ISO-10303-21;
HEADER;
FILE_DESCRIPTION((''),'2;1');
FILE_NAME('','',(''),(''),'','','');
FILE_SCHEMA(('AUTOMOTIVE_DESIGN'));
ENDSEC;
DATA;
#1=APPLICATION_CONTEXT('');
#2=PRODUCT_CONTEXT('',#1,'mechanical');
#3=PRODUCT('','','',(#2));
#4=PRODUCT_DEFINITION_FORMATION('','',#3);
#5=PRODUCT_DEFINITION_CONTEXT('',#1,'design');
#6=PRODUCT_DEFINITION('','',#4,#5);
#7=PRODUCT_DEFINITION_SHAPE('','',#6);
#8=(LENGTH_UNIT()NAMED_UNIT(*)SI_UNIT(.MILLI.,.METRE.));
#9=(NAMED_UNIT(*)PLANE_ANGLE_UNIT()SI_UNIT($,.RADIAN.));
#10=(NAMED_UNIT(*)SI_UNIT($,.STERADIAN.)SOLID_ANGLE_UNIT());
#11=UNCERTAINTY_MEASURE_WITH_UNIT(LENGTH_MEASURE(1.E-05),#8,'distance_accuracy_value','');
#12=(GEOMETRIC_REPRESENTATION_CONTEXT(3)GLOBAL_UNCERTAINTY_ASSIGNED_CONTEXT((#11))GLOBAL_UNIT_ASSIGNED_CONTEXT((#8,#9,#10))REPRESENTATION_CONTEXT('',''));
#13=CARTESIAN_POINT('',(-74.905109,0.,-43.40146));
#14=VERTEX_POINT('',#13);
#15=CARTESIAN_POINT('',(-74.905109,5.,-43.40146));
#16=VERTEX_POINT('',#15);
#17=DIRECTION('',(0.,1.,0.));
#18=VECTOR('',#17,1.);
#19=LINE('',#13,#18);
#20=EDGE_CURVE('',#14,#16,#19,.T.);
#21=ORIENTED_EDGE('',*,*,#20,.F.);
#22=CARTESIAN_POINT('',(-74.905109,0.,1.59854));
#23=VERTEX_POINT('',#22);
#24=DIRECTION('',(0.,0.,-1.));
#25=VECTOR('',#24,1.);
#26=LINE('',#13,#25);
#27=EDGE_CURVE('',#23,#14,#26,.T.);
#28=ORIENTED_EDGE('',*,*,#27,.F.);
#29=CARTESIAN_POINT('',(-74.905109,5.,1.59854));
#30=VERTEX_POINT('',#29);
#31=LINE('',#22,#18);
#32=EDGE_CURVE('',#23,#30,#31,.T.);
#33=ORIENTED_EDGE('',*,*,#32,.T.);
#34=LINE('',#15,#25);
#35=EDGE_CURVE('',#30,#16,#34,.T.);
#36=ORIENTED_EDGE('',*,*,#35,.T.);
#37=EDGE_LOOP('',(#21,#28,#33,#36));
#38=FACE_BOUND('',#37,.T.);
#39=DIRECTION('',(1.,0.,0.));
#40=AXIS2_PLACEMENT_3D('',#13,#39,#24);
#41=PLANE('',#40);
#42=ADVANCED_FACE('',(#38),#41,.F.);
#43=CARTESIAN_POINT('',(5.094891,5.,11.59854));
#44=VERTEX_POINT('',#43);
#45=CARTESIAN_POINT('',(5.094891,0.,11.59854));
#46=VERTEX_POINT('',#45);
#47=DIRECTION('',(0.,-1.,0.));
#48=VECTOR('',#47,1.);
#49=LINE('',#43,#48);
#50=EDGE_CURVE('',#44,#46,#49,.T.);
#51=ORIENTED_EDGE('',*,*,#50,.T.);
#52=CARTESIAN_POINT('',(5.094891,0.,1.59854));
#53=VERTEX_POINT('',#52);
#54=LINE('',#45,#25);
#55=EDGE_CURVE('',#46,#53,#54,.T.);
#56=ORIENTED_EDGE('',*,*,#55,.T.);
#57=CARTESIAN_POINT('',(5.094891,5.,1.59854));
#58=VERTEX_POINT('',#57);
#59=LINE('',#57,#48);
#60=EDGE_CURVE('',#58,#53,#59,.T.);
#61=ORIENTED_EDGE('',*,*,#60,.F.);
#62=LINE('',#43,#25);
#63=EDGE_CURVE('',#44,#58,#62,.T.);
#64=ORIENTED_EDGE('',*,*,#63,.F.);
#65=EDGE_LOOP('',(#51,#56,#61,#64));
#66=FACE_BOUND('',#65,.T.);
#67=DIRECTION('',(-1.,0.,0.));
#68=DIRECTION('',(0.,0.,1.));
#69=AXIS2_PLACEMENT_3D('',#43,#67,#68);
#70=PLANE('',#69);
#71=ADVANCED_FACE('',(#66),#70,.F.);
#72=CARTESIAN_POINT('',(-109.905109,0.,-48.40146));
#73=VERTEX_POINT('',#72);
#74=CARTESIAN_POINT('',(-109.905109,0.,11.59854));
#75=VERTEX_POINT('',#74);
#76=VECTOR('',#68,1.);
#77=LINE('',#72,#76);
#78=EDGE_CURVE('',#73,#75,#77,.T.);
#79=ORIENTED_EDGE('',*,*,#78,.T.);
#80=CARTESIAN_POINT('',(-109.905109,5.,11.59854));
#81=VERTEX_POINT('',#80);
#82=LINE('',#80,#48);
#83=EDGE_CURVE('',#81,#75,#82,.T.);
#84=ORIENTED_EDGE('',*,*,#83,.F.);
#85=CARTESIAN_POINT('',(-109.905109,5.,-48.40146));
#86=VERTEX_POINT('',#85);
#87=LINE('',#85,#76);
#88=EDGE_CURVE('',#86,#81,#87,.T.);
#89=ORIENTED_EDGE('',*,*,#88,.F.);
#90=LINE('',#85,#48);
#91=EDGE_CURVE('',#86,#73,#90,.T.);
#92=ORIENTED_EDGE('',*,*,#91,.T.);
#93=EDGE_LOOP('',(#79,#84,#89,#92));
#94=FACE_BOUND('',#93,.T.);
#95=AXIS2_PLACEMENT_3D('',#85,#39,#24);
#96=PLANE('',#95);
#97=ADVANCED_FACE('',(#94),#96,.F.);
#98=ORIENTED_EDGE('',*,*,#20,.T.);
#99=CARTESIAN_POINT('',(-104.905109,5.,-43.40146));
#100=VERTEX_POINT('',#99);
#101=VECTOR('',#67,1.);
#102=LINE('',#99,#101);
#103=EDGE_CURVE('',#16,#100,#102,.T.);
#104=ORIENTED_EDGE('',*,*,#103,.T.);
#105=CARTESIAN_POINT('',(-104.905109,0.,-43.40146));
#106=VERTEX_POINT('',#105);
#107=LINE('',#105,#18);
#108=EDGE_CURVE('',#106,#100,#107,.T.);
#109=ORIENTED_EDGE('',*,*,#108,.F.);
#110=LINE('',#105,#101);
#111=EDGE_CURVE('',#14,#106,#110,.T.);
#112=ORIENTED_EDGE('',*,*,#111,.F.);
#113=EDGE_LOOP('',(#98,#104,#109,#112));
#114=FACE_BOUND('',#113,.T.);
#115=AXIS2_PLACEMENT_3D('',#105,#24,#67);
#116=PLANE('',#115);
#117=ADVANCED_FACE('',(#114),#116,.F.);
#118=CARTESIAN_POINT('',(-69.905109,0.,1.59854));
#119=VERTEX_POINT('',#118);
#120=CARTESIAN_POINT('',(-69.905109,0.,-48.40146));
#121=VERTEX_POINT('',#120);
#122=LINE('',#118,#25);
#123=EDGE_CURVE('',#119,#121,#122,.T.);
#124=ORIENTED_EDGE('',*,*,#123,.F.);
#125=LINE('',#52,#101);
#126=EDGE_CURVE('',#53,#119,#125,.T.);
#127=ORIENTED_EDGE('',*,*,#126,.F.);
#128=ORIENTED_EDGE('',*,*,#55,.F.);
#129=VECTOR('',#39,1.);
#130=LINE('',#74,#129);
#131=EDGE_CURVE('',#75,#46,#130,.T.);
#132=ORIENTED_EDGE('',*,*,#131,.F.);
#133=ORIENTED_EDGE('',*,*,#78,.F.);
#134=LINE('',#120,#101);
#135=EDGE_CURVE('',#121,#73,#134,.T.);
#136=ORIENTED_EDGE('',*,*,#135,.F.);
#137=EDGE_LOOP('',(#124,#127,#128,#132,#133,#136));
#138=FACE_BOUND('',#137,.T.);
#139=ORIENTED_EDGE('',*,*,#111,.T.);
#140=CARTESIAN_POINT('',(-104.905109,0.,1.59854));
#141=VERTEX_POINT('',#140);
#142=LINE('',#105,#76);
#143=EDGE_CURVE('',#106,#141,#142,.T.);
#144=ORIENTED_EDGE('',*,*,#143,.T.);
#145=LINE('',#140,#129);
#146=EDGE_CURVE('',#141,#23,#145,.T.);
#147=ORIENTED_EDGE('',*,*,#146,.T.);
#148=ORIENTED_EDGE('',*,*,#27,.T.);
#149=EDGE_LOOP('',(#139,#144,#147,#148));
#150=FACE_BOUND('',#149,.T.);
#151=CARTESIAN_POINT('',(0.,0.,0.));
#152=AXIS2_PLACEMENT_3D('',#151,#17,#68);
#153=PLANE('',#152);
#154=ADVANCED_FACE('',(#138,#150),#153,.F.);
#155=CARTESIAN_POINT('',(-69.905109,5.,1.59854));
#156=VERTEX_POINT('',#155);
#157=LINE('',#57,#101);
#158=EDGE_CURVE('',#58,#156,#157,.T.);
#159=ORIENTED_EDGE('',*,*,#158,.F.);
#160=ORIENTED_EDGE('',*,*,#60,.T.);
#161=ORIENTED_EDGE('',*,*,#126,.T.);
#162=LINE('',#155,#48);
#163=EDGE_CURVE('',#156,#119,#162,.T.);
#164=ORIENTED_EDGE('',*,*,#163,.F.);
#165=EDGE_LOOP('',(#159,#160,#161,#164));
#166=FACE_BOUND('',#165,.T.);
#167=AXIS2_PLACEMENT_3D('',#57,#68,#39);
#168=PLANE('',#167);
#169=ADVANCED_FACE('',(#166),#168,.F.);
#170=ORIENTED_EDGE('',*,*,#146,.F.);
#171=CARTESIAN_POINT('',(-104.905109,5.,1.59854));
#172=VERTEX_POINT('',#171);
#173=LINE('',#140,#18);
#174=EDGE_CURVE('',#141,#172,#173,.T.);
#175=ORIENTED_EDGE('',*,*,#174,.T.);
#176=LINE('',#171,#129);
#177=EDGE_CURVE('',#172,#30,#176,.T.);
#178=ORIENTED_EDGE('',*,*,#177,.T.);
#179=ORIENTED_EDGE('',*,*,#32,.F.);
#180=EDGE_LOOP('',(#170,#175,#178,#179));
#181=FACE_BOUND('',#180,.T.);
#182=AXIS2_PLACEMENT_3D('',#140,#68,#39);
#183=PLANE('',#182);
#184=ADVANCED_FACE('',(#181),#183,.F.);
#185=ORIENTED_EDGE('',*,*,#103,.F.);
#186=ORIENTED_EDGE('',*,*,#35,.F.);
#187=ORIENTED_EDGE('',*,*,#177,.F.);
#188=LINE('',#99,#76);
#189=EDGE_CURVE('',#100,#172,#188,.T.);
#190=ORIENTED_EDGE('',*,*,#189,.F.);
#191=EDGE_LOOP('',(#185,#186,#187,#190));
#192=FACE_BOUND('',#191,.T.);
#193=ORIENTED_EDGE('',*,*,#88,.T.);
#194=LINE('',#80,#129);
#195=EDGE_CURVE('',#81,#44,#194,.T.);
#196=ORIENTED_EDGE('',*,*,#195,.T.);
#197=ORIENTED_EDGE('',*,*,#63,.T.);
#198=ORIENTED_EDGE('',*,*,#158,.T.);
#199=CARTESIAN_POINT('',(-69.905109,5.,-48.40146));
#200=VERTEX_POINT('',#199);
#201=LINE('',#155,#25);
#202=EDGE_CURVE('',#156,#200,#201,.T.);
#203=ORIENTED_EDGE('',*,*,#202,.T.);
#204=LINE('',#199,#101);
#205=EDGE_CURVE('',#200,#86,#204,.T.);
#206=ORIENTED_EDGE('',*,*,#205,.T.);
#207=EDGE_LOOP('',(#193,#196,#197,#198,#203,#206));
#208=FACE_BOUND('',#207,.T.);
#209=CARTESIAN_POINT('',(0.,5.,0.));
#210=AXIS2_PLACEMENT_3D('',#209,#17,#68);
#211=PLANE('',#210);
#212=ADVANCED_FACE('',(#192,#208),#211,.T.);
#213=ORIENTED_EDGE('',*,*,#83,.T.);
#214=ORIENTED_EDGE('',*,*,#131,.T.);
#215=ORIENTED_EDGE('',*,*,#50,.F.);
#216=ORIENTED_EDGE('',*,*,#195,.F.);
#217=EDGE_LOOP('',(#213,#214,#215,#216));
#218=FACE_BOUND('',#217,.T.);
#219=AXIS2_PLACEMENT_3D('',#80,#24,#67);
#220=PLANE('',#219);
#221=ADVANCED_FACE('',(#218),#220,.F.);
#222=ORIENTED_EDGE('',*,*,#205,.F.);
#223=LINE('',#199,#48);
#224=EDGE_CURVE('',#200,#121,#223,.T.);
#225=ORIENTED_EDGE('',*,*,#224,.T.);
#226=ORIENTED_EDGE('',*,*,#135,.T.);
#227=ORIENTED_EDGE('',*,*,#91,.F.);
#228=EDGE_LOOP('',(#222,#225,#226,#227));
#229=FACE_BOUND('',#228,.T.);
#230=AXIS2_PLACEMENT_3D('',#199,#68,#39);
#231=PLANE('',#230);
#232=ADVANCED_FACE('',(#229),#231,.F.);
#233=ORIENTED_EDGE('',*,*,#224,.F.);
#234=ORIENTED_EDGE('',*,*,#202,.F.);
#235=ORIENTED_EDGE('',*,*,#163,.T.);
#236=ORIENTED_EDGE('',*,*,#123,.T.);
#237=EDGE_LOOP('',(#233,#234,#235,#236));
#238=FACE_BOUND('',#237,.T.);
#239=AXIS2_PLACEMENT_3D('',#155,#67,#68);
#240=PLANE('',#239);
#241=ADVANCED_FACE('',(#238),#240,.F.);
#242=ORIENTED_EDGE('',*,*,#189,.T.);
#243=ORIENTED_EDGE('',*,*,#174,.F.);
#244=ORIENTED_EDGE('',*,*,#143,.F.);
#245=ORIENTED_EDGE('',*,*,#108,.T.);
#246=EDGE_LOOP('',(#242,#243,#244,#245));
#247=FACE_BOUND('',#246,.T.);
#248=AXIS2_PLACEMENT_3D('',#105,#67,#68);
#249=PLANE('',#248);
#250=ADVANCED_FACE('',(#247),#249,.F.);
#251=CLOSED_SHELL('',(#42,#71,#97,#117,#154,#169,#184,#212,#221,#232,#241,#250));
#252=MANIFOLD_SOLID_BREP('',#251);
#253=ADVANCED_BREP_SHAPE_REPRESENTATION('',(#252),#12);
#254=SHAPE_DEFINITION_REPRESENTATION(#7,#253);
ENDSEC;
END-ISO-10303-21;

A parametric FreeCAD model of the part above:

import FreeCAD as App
import Part
import Sketcher
Q = App.Units.Quantity

doc = App.newDocument("Part")
body = doc.addObject("PartDesign::Body", "Body")

sketch1 = body.newObject("Sketcher::SketchObject", "Sketch")
sketch1.AttachmentSupport = (doc.getObject("XZ_Plane"), [""])
sketch1.MapMode = "FlatFace"
sketch1.addGeometry(Part.LineSegment(App.Vector(-109.905109, -48.40146, 0), App.Vector(-109.905109, 11.59854, 0)), False)
sketch1.addGeometry(Part.LineSegment(App.Vector(-109.905109, 11.59854, 0), App.Vector(5.094891, 11.59854, 0)), False)
sketch1.addGeometry(Part.LineSegment(App.Vector(5.094891, 11.59854, 0), App.Vector(5.094891, 1.59854, 0)), False)
sketch1.addGeometry(Part.LineSegment(App.Vector(5.094891, 1.59854, 0), App.Vector(-69.905109, 1.59854, 0)), False)
sketch1.addGeometry(Part.LineSegment(App.Vector(-69.905109, 1.59854, 0), App.Vector(-69.905109, -48.40146, 0)), False)
sketch1.addGeometry(Part.LineSegment(App.Vector(-69.905109, -48.40146, 0), App.Vector(-109.905109, -48.40146, 0)), False)
sketch1.addConstraint(Sketcher.Constraint("Coincident", 0, 2, 1, 1))
sketch1.addConstraint(Sketcher.Constraint("Coincident", 1, 2, 2, 1))
sketch1.addConstraint(Sketcher.Constraint("Coincident", 2, 2, 3, 1))
sketch1.addConstraint(Sketcher.Constraint("Coincident", 3, 2, 4, 1))
sketch1.addConstraint(Sketcher.Constraint("Coincident", 4, 2, 5, 1))
sketch1.addConstraint(Sketcher.Constraint("Coincident", 5, 2, 0, 1))
sketch1.addConstraint(Sketcher.Constraint("Vertical", 0))
sketch1.addConstraint(Sketcher.Constraint("Horizontal", 1))
sketch1.addConstraint(Sketcher.Constraint("Vertical", 2))
sketch1.addConstraint(Sketcher.Constraint("Horizontal", 3))
sketch1.addConstraint(Sketcher.Constraint("Vertical", 4))
sketch1.addConstraint(Sketcher.Constraint("Horizontal", 5))
sketch1.addConstraint(Sketcher.Constraint("DistanceX", 1, 1, 1, 2, Q("115 mm")))
sketch1.addConstraint(Sketcher.Constraint("DistanceX", 3, 2, 3, 1, Q("75 mm")))
sketch1.addConstraint(Sketcher.Constraint("DistanceY", 0, 1, 0, 2, Q("60 mm")))
sketch1.addConstraint(Sketcher.Constraint("DistanceY", 2, 2, 2, 1, Q("10 mm")))
sketch1.addConstraint(Sketcher.Constraint("DistanceX", 0, 2, -1, 1, Q("109.905109 mm")))
sketch1.addConstraint(Sketcher.Constraint("DistanceY", -1, 1, 0, 2, Q("11.59854 mm")))
pad1 = body.newObject("PartDesign::Pad", "Pad")
pad1.Profile = sketch1
pad1.Length = 5
pad1.Reversed = True

sketch2 = body.newObject("Sketcher::SketchObject", "Sketch001")
sketch2.AttachmentSupport = (doc.getObject("XZ_Plane"), [""])
sketch2.MapMode = "FlatFace"
sketch2.AttachmentOffset = App.Placement(App.Vector(0, 0, -5), App.Rotation())
sketch2.addGeometry(Part.LineSegment(App.Vector(-104.905109, -43.40146, 0), App.Vector(-104.905109, 1.59854, 0)), False)
sketch2.addGeometry(Part.LineSegment(App.Vector(-104.905109, 1.59854, 0), App.Vector(-74.905109, 1.59854, 0)), False)
sketch2.addGeometry(Part.LineSegment(App.Vector(-74.905109, 1.59854, 0), App.Vector(-74.905109, -43.40146, 0)), False)
sketch2.addGeometry(Part.LineSegment(App.Vector(-74.905109, -43.40146, 0), App.Vector(-104.905109, -43.40146, 0)), False)
sketch2.addConstraint(Sketcher.Constraint("Coincident", 0, 2, 1, 1))
sketch2.addConstraint(Sketcher.Constraint("Coincident", 1, 2, 2, 1))
sketch2.addConstraint(Sketcher.Constraint("Coincident", 2, 2, 3, 1))
sketch2.addConstraint(Sketcher.Constraint("Coincident", 3, 2, 0, 1))
sketch2.addConstraint(Sketcher.Constraint("Vertical", 0))
sketch2.addConstraint(Sketcher.Constraint("Horizontal", 1))
sketch2.addConstraint(Sketcher.Constraint("Vertical", 2))
sketch2.addConstraint(Sketcher.Constraint("Horizontal", 3))
sketch2.addConstraint(Sketcher.Constraint("DistanceX", 1, 1, 1, 2, Q("30 mm")))
sketch2.addConstraint(Sketcher.Constraint("DistanceY", 0, 1, 0, 2, Q("45 mm")))
sketch2.addConstraint(Sketcher.Constraint("DistanceX", 0, 2, -1, 1, Q("104.905109 mm")))
sketch2.addConstraint(Sketcher.Constraint("DistanceY", -1, 1, 0, 2, Q("1.59854 mm")))
pocket1 = body.newObject("PartDesign::Pocket", "Pocket")
pocket1.Profile = sketch2
pocket1.Type = "ThroughAll"
pocket1.Reversed = True

doc.recompute()
